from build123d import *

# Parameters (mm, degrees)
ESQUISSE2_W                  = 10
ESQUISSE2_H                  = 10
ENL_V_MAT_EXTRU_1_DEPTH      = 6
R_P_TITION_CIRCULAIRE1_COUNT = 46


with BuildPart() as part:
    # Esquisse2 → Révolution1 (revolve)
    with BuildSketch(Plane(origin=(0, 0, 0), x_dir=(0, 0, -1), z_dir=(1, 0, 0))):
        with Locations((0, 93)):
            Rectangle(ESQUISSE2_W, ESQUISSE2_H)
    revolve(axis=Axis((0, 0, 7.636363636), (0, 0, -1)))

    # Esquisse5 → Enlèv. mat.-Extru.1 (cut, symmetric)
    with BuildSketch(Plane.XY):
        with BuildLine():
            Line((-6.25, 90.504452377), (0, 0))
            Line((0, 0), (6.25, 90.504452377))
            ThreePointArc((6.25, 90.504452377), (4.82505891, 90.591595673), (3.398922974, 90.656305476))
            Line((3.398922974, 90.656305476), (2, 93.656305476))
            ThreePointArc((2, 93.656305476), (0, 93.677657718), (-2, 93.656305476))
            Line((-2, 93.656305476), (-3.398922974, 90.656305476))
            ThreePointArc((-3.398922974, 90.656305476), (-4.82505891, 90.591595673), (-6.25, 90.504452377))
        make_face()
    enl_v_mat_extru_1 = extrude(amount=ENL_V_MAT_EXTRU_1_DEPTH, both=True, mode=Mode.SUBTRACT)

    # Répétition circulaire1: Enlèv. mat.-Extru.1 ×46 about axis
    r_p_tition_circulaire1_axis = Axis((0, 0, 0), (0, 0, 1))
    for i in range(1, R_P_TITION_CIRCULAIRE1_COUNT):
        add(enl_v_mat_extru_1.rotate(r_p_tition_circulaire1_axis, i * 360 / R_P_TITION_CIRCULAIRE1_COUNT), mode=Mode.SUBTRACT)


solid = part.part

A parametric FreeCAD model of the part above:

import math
import FreeCAD as App
import Part
import Sketcher
from FreeCAD import Vector
Q = App.Units.Quantity


def add_polygon(sketch, points):
    """Adds a closed chain of lines whose ends are joined by coincident constraints."""
    first, n = sketch.GeometryCount, len(points)
    for a, b in zip(points, points[1:] + points[:1]):
        sketch.addGeometry(Part.LineSegment(App.Vector(*a, 0), App.Vector(*b, 0)), False)
    for i in range(n):
        sketch.addConstraint(Sketcher.Constraint("Coincident", first + i, 2, first + (i + 1) % n, 1))

doc = App.newDocument("Part")
body = doc.addObject("PartDesign::Body", "Body")

# Sketch on YZ plane
sketch1 = body.newObject("Sketcher::SketchObject", "Sketch")
sketch1.AttachmentSupport = (doc.getObject("YZ_Plane"), [""])
sketch1.MapMode = "FlatFace"
add_polygon(sketch1, [(98, 5), (88, 5), (88, -5), (98, -5)])  # lines 0-3
sketch1.addConstraint([
    Sketcher.Constraint("Horizontal", 0),
    Sketcher.Constraint("Vertical", 1),
    Sketcher.Constraint("Horizontal", 2),
    Sketcher.Constraint("Vertical", 3),
    Sketcher.Constraint("Equal", 2, 1),
    Sketcher.Constraint("DistanceX", 0, 2, 0, 1, Q("10 mm")),
    Sketcher.Constraint("DistanceX", -1, 1, 0, 2, Q("88 mm")),
    Sketcher.Constraint("DistanceY", -1, 1, 0, 2, Q("5 mm")),
])
revolution = body.newObject("PartDesign::Revolution", "Revolution")
revolution.Profile = sketch1
revolution.ReferenceAxis = (sketch1, ["V_Axis"])
revolution.Angle = 360

# Sketch on XY plane
sketch2 = body.newObject("Sketcher::SketchObject", "Sketch001")
sketch2.AttachmentSupport = (doc.getObject("XY_Plane"), [""])
sketch2.MapMode = "FlatFace"
sketch2.addGeometry([
    Part.LineSegment(Vector(-6.2, 90.5, 0), Vector(0, 0, 0)),  # 0
    Part.LineSegment(Vector(0, 0, 0), Vector(6.2, 90.5, 0)),  # 1
    Part.ArcOfCircle(Part.Circle(Vector(0, 0, 0), Vector(0, 0, 1), 90.7), math.radians(86.05), math.radians(87.85)),  # 2
    Part.LineSegment(Vector(3.4, 90.7, 0), Vector(2, 93.7, 0)),  # 3
    Part.ArcOfCircle(Part.Circle(Vector(0, 0, 0), Vector(0, 0, 1), 93.7), math.radians(88.78), math.radians(91.22)),  # 4
    Part.LineSegment(Vector(-2, 93.7, 0), Vector(-3.4, 90.7, 0)),  # 5
    Part.ArcOfCircle(Part.Circle(Vector(0, 0, 0), Vector(0, 0, 1), 90.7), math.radians(92.15), math.radians(93.95)),  # 6
], False)
sketch2.addConstraint([
    Sketcher.Constraint("Coincident", 0, 2, 1, 1),
    Sketcher.Constraint("Coincident", 1, 2, 2, 1),
    Sketcher.Constraint("Coincident", 2, 2, 3, 1),
    Sketcher.Constraint("Coincident", 3, 2, 4, 1),
    Sketcher.Constraint("Coincident", 4, 2, 5, 1),
    Sketcher.Constraint("Coincident", 5, 2, 6, 1),
    Sketcher.Constraint("Coincident", 6, 2, 0, 1),
    Sketcher.Constraint("Coincident", 2, 3, -1, 1),
    Sketcher.Constraint("Coincident", 4, 3, -1, 1),
    Sketcher.Constraint("Coincident", 6, 3, -1, 1),
    Sketcher.Constraint("Coincident", 0, 2, -1, 1),
    Sketcher.Constraint("Equal", 2, 6),
    Sketcher.Constraint("Horizontal", 3, 2, 4, 2),
    Sketcher.Constraint("Horizontal", 2, 2, 5, 2),
    Sketcher.Constraint("Horizontal", 1, 2, 6, 2),
    Sketcher.Constraint("Angle", 3, Q("115 deg")),
    Sketcher.Constraint("DistanceX", -1, 1, 3, 2, Q("2 mm")),
    Sketcher.Constraint("DistanceY", 2, 2, 3, 2, Q("3 mm")),
    Sketcher.Constraint("DistanceX", 6, 2, 1, 2, Q("12.5 mm")),
    Sketcher.Constraint("Distance", 0, Q("90.72 mm")),
])
pocket1 = body.newObject("PartDesign::Pocket", "Pocket")
pocket1.Profile = sketch2
pocket1.Length = 12
pocket1.Midplane = True
doc.recompute()

polarpattern = body.newObject("PartDesign::PolarPattern", "PolarPattern")
polarpattern.Originals = [pocket1]
polarpattern.Axis = (doc.getObject("Z_Axis"), [""])
polarpattern.Angle = 360
polarpattern.Occurrences = 46
body.Tip = polarpattern

doc.recompute()
